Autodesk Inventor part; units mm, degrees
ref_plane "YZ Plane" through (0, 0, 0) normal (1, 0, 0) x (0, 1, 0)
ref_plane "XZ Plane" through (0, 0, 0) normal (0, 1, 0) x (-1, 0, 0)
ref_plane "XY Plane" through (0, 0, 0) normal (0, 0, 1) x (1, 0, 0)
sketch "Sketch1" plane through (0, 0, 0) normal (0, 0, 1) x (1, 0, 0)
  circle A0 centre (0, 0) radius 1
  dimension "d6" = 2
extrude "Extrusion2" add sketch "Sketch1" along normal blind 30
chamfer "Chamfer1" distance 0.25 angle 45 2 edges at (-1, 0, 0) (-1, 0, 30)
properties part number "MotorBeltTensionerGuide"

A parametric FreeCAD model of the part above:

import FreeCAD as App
import Part
import Sketcher


def edges_at(feature, points):
    """Names of the edges that pass closest to the given points."""
    edges = feature.Shape.Edges
    near = lambda p: min(range(len(edges)), key=lambda i: edges[i].distToShape(Part.Vertex(*p))[0])
    return sorted({f"Edge{near(p) + 1}" for p in points})

doc = App.newDocument("Part")
body = doc.addObject("PartDesign::Body", "Body")

sketch1 = doc.addObject("Sketcher::SketchObject", "Sketch")
body.addObject(sketch1)
sketch1.AttachmentSupport = (doc.XY_Plane, [""])
sketch1.MapMode = "FlatFace"
sketch1.addGeometry(Part.Circle(App.Vector(0, 0, 0), App.Vector(0, 0, 1), 1), False)
sketch1.addConstraint([
    Sketcher.Constraint("Coincident", 0, 3, -1, 1),
    Sketcher.Constraint("Diameter", 0, 2.0),
])
pad1 = doc.addObject("PartDesign::Pad", "Pad")
body.addObject(pad1)
pad1.Profile = sketch1
pad1.Length = 30
doc.recompute()

chamfer = doc.addObject("PartDesign::Chamfer", "Chamfer")
body.addObject(chamfer)
chamfer.Base = (pad1, edges_at(pad1, [(-1, 0, 0), (-1, 0, 30)]))
chamfer.Size = 0.25

doc.recompute()
